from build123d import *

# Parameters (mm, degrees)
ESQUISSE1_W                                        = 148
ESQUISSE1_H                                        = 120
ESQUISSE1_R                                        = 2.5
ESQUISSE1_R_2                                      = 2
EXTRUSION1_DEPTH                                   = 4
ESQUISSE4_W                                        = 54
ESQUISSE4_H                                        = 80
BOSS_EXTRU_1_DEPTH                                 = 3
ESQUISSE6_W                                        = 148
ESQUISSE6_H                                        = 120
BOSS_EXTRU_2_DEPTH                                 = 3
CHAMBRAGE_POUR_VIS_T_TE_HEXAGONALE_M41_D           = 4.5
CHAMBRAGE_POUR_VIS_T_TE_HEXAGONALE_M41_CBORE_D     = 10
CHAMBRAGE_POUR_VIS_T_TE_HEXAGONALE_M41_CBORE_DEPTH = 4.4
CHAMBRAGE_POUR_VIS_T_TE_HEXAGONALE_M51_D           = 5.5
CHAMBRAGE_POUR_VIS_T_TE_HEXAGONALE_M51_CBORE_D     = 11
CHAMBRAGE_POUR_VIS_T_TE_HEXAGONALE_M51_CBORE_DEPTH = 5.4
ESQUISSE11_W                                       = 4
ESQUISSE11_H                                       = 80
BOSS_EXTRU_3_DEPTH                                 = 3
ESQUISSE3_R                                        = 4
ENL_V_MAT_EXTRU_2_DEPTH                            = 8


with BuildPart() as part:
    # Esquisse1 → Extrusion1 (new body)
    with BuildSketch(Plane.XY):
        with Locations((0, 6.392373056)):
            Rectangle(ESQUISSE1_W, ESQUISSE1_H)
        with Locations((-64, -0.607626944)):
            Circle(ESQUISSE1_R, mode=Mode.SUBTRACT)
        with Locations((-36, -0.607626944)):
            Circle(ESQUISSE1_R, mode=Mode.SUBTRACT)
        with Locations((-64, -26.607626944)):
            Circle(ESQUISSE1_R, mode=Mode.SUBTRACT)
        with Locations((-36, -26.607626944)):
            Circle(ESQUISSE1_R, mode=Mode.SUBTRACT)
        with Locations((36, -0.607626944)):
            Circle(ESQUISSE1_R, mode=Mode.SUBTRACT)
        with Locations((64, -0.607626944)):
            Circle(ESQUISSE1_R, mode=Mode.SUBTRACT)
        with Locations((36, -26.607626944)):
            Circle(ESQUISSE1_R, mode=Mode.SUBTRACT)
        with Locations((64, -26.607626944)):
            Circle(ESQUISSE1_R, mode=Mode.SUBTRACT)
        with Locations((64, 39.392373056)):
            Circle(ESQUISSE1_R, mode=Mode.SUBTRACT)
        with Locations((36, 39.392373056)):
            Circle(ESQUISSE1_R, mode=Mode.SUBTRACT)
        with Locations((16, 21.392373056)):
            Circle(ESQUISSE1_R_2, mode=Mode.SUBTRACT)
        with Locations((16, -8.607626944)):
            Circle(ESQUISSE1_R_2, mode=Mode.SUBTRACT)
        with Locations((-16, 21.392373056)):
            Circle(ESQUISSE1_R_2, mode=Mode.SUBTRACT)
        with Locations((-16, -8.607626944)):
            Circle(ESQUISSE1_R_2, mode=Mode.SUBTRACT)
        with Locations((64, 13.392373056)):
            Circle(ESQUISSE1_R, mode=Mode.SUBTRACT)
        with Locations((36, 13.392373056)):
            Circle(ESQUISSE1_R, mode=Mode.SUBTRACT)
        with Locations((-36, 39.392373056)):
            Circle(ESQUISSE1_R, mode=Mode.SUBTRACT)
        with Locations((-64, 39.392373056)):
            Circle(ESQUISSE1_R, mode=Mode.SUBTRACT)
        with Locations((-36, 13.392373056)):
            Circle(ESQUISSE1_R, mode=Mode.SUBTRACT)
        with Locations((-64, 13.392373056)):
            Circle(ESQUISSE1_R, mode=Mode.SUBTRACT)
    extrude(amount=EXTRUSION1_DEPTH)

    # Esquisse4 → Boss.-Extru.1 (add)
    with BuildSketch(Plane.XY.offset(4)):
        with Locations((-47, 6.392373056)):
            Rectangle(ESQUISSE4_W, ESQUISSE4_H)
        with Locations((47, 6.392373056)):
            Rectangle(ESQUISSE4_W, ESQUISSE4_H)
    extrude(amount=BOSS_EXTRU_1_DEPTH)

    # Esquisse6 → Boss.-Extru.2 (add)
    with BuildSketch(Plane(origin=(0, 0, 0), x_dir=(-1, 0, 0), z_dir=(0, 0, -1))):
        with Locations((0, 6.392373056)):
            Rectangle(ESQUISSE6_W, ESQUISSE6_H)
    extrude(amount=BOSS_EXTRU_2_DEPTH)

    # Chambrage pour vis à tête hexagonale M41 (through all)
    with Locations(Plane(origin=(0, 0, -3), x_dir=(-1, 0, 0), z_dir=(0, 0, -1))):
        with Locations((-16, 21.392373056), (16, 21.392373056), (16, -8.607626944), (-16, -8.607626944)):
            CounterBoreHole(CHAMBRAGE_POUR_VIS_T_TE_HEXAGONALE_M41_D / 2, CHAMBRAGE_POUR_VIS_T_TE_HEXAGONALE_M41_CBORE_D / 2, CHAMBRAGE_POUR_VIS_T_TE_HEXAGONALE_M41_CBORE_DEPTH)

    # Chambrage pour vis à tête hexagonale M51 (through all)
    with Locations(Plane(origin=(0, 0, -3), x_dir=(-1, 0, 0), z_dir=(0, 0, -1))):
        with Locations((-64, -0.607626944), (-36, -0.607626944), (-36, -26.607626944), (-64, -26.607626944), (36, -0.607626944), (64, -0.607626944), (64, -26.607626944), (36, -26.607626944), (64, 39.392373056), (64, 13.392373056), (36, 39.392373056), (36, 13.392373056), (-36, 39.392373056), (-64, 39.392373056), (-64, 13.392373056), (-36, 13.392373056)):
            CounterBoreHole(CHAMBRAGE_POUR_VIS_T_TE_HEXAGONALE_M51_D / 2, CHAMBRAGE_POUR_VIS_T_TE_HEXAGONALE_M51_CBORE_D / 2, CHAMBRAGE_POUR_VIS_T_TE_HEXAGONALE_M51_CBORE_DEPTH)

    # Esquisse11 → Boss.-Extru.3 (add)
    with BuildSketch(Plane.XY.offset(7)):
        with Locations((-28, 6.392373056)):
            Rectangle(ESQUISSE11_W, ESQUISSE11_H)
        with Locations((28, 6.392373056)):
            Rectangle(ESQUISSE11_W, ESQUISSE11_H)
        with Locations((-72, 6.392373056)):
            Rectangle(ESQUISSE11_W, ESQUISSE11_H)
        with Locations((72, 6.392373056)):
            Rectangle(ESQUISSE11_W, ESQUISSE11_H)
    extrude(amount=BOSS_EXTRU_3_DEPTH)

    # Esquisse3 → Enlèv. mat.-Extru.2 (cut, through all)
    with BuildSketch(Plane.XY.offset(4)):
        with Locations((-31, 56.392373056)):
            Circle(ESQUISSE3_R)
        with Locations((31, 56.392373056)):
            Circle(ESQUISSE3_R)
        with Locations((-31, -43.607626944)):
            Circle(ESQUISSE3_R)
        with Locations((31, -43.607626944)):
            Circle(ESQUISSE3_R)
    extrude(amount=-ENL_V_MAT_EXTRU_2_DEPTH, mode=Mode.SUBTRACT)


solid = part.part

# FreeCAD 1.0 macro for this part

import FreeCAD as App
import Part
import Sketcher
from FreeCAD import Vector
Q = App.Units.Quantity

doc = App.newDocument("Part")
body = doc.addObject("PartDesign::Body", "Body")

sketch1 = body.newObject("Sketcher::SketchObject", "Sketch")
sketch1.AttachmentSupport = (doc.getObject("XY_Plane"), [""])
sketch1.MapMode = "FlatFace"
sketch1.addGeometry(Part.LineSegment(Vector(-74, 66.4, 0), Vector(-74, -53.6, 0)), False)
sketch1.addGeometry(Part.LineSegment(Vector(-74, -53.6, 0), Vector(74, -53.6, 0)), False)
sketch1.addGeometry(Part.LineSegment(Vector(74, -53.6, 0), Vector(74, 66.4, 0)), False)
sketch1.addGeometry(Part.LineSegment(Vector(74, 66.4, 0), Vector(-74, 66.4, 0)), False)
sketch1.addGeometry(Part.Circle(Vector(-64, -26.6, 0), Vector(0, 0, 1), 2.5), False)
sketch1.addGeometry(Part.Circle(Vector(-36, -26.6, 0), Vector(0, 0, 1), 2.5), False)
sketch1.addGeometry(Part.Circle(Vector(-64, -0.6, 0), Vector(0, 0, 1), 2.5), False)
sketch1.addGeometry(Part.Circle(Vector(-36, -0.6, 0), Vector(0, 0, 1), 2.5), False)
sketch1.addGeometry(Part.Circle(Vector(-16, -8.6, 0), Vector(0, 0, 1), 2), False)
sketch1.addGeometry(Part.Circle(Vector(36, -26.6, 0), Vector(0, 0, 1), 2.5), False)
sketch1.addGeometry(Part.Circle(Vector(64, -26.6, 0), Vector(0, 0, 1), 2.5), False)
sketch1.addGeometry(Part.Circle(Vector(16, -8.6, 0), Vector(0, 0, 1), 2), False)
sketch1.addGeometry(Part.Circle(Vector(36, -0.6, 0), Vector(0, 0, 1), 2.5), False)
sketch1.addGeometry(Part.Circle(Vector(64, -0.6, 0), Vector(0, 0, 1), 2.5), False)
sketch1.addGeometry(Part.Circle(Vector(-64, 13.4, 0), Vector(0, 0, 1), 2.5), False)
sketch1.addGeometry(Part.Circle(Vector(-36, 13.4, 0), Vector(0, 0, 1), 2.5), False)
sketch1.addGeometry(Part.Circle(Vector(-16, 21.4, 0), Vector(0, 0, 1), 2), False)
sketch1.addGeometry(Part.Circle(Vector(-64, 39.4, 0), Vector(0, 0, 1), 2.5), False)
sketch1.addGeometry(Part.Circle(Vector(-36, 39.4, 0), Vector(0, 0, 1), 2.5), False)
sketch1.addGeometry(Part.Circle(Vector(16, 21.4, 0), Vector(0, 0, 1), 2), False)
sketch1.addGeometry(Part.Circle(Vector(36, 13.4, 0), Vector(0, 0, 1), 2.5), False)
sketch1.addGeometry(Part.Circle(Vector(64, 13.4, 0), Vector(0, 0, 1), 2.5), False)
sketch1.addGeometry(Part.Circle(Vector(36, 39.4, 0), Vector(0, 0, 1), 2.5), False)
sketch1.addGeometry(Part.Circle(Vector(64, 39.4, 0), Vector(0, 0, 1), 2.5), False)
sketch1.addConstraint(Sketcher.Constraint("Coincident", 0, 2, 1, 1))
sketch1.addConstraint(Sketcher.Constraint("Coincident", 1, 2, 2, 1))
sketch1.addConstraint(Sketcher.Constraint("Coincident", 2, 2, 3, 1))
sketch1.addConstraint(Sketcher.Constraint("Coincident", 3, 2, 0, 1))
sketch1.addConstraint(Sketcher.Constraint("Vertical", 0))
sketch1.addConstraint(Sketcher.Constraint("Horizontal", 1))
sketch1.addConstraint(Sketcher.Constraint("Vertical", 2))
sketch1.addConstraint(Sketcher.Constraint("Horizontal", 3))
sketch1.addConstraint(Sketcher.Constraint("Equal", 4, 5))
sketch1.addConstraint(Sketcher.Constraint("Equal", 5, 6))
sketch1.addConstraint(Sketcher.Constraint("Equal", 6, 7))
sketch1.addConstraint(Sketcher.Constraint("Equal", 7, 9))
sketch1.addConstraint(Sketcher.Constraint("Equal", 9, 10))
sketch1.addConstraint(Sketcher.Constraint("Equal", 8, 11))
sketch1.addConstraint(Sketcher.Constraint("Equal", 10, 12))
sketch1.addConstraint(Sketcher.Constraint("Equal", 12, 13))
sketch1.addConstraint(Sketcher.Constraint("Equal", 13, 14))
sketch1.addConstraint(Sketcher.Constraint("Equal", 14, 15))
sketch1.addConstraint(Sketcher.Constraint("Equal", 11, 16))
sketch1.addConstraint(Sketcher.Constraint("Equal", 15, 17))
sketch1.addConstraint(Sketcher.Constraint("Equal", 17, 18))
sketch1.addConstraint(Sketcher.Constraint("Equal", 16, 19))
sketch1.addConstraint(Sketcher.Constraint("Equal", 18, 20))
sketch1.addConstraint(Sketcher.Constraint("Equal", 20, 21))
sketch1.addConstraint(Sketcher.Constraint("Equal", 21, 22))
sketch1.addConstraint(Sketcher.Constraint("Equal", 22, 23))
sketch1.addConstraint(Sketcher.Constraint("Symmetric", 5, 3, 9, 3, -2))
sketch1.addConstraint(Sketcher.Constraint("Symmetric", 4, 3, 10, 3, -2))
sketch1.addConstraint(Sketcher.Constraint("Symmetric", 8, 3, 11, 3, -2))
sketch1.addConstraint(Sketcher.Constraint("Symmetric", 7, 3, 12, 3, -2))
sketch1.addConstraint(Sketcher.Constraint("Symmetric", 6, 3, 13, 3, -2))
sketch1.addConstraint(Sketcher.Constraint("Symmetric", 16, 3, 19, 3, -2))
sketch1.addConstraint(Sketcher.Constraint("Symmetric", 15, 3, 20, 3, -2))
sketch1.addConstraint(Sketcher.Constraint("Symmetric", 14, 3, 21, 3, -2))
sketch1.addConstraint(Sketcher.Constraint("Symmetric", 18, 3, 22, 3, -2))
sketch1.addConstraint(Sketcher.Constraint("Symmetric", 17, 3, 23, 3, -2))
sketch1.addConstraint(Sketcher.Constraint("Horizontal", 4, 3, 5, 3))
sketch1.addConstraint(Sketcher.Constraint("Horizontal", 6, 3, 7, 3))
sketch1.addConstraint(Sketcher.Constraint("Horizontal", 14, 3, 15, 3))
sketch1.addConstraint(Sketcher.Constraint("Horizontal", 17, 3, 18, 3))
sketch1.addConstraint(Sketcher.Constraint("Vertical", 4, 3, 6, 3))
sketch1.addConstraint(Sketcher.Constraint("Vertical", 5, 3, 7, 3))
sketch1.addConstraint(Sketcher.Constraint("Vertical", 6, 3, 14, 3))
sketch1.addConstraint(Sketcher.Constraint("Vertical", 7, 3, 15, 3))
sketch1.addConstraint(Sketcher.Constraint("Vertical", 8, 3, 16, 3))
sketch1.addConstraint(Sketcher.Constraint("Vertical", 14, 3, 17, 3))
sketch1.addConstraint(Sketcher.Constraint("Vertical", 15, 3, 18, 3))
sketch1.addConstraint(Sketcher.Constraint("Diameter", 4, Q("5 mm")))
sketch1.addConstraint(Sketcher.Constraint("Diameter", 8, Q("4 mm")))
sketch1.addConstraint(Sketcher.Constraint("DistanceX", 1, 1, 1, 2, Q("148 mm")))
sketch1.addConstraint(Sketcher.Constraint("DistanceY", 0, 2, 0, 1, Q("120 mm")))
sketch1.addConstraint(Sketcher.Constraint("DistanceX", 4, 3, -1, 1, Q("64 mm")))
sketch1.addConstraint(Sketcher.Constraint("DistanceX", 5, 3, -1, 1, Q("36 mm")))
sketch1.addConstraint(Sketcher.Constraint("DistanceX", 8, 3, -1, 1, Q("16 mm")))
sketch1.addConstraint(Sketcher.Constraint("DistanceX", 0, 2, -1, 1, Q("74 mm")))
sketch1.addConstraint(Sketcher.Constraint("DistanceY", 4, 3, 6, 3, Q("26 mm")))
sketch1.addConstraint(Sketcher.Constraint("DistanceY", 8, 3, 7, 3, Q("8 mm")))
sketch1.addConstraint(Sketcher.Constraint("DistanceY", 6, 3, 14, 3, Q("14 mm")))
sketch1.addConstraint(Sketcher.Constraint("DistanceY", 15, 3, 16, 3, Q("8 mm")))
sketch1.addConstraint(Sketcher.Constraint("DistanceY", 14, 3, 17, 3, Q("26 mm")))
sketch1.addConstraint(Sketcher.Constraint("DistanceY", 0, 2, 4, 3, Q("27 mm")))
sketch1.addConstraint(Sketcher.Constraint("DistanceY", 4, 3, -1, 1, Q("26.607627 mm")))
pad1 = body.newObject("PartDesign::Pad", "Pad")
pad1.Profile = sketch1
pad1.Length = 4

sketch2 = body.newObject("Sketcher::SketchObject", "Sketch001")
sketch2.AttachmentSupport = (doc.getObject("XY_Plane"), [""])
sketch2.MapMode = "FlatFace"
sketch2.AttachmentOffset = App.Placement(Vector(0, 0, 4), App.Rotation())
sketch2.addGeometry(Part.LineSegment(Vector(-74, 46, 0), Vector(-74, -34, 0)), False)
sketch2.addGeometry(Part.LineSegment(Vector(-74, -34, 0), Vector(-20, -34, 0)), False)
sketch2.addGeometry(Part.LineSegment(Vector(-20, -34, 0), Vector(-20, 46, 0)), False)
sketch2.addGeometry(Part.LineSegment(Vector(-20, 46, 0), Vector(-74, 46, 0)), False)
sketch2.addGeometry(Part.LineSegment(Vector(20, 46, 0), Vector(20, -34, 0)), False)
sketch2.addGeometry(Part.LineSegment(Vector(20, -34, 0), Vector(74, -34, 0)), False)
sketch2.addGeometry(Part.LineSegment(Vector(74, -34, 0), Vector(74, 46, 0)), False)
sketch2.addGeometry(Part.LineSegment(Vector(74, 46, 0), Vector(20, 46, 0)), False)
sketch2.addConstraint(Sketcher.Constraint("Coincident", 0, 2, 1, 1))
sketch2.addConstraint(Sketcher.Constraint("Coincident", 1, 2, 2, 1))
sketch2.addConstraint(Sketcher.Constraint("Coincident", 2, 2, 3, 1))
sketch2.addConstraint(Sketcher.Constraint("Coincident", 3, 2, 0, 1))
sketch2.addConstraint(Sketcher.Constraint("Coincident", 4, 2, 5, 1))
sketch2.addConstraint(Sketcher.Constraint("Coincident", 5, 2, 6, 1))
sketch2.addConstraint(Sketcher.Constraint("Coincident", 6, 2, 7, 1))
sketch2.addConstraint(Sketcher.Constraint("Coincident", 7, 2, 4, 1))
sketch2.addConstraint(Sketcher.Constraint("Vertical", 0))
sketch2.addConstraint(Sketcher.Constraint("Horizontal", 1))
sketch2.addConstraint(Sketcher.Constraint("Vertical", 2))
sketch2.addConstraint(Sketcher.Constraint("Horizontal", 3))
sketch2.addConstraint(Sketcher.Constraint("Vertical", 4))
sketch2.addConstraint(Sketcher.Constraint("Horizontal", 5))
sketch2.addConstraint(Sketcher.Constraint("Vertical", 6))
sketch2.addConstraint(Sketcher.Constraint("Horizontal", 7))
sketch2.addConstraint(Sketcher.Constraint("Symmetric", 1, 2, 4, 2, -2))
sketch2.addConstraint(Sketcher.Constraint("Symmetric", 3, 2, 6, 2, -2))
sketch2.addConstraint(Sketcher.Constraint("DistanceX", 1, 1, 1, 2, Q("54 mm")))
sketch2.addConstraint(Sketcher.Constraint("DistanceY", 0, 2, 0, 1, Q("80 mm")))
sketch2.addConstraint(Sketcher.Constraint("DistanceX", 0, 2, -1, 1, Q("74 mm")))
sketch2.addConstraint(Sketcher.Constraint("DistanceY", 0, 2, -1, 1, Q("33.607627 mm")))
pad2 = body.newObject("PartDesign::Pad", "Pad001")
pad2.Profile = sketch2
pad2.Length = 3

sketch3 = body.newObject("Sketcher::SketchObject", "Sketch002")
sketch3.AttachmentSupport = (doc.getObject("XY_Plane"), [""])
sketch3.MapMode = "FlatFace"
sketch3.addGeometry(Part.LineSegment(Vector(74, 66, 0), Vector(74, -54, 0)), False)
sketch3.addGeometry(Part.LineSegment(Vector(74, -54, 0), Vector(-74, -54, 0)), False)
sketch3.addGeometry(Part.LineSegment(Vector(-74, -54, 0), Vector(-74, 66, 0)), False)
sketch3.addGeometry(Part.LineSegment(Vector(-74, 66, 0), Vector(74, 66, 0)), False)
sketch3.addConstraint(Sketcher.Constraint("Coincident", 0, 2, 1, 1))
sketch3.addConstraint(Sketcher.Constraint("Coincident", 1, 2, 2, 1))
sketch3.addConstraint(Sketcher.Constraint("Coincident", 2, 2, 3, 1))
sketch3.addConstraint(Sketcher.Constraint("Coincident", 3, 2, 0, 1))
sketch3.addConstraint(Sketcher.Constraint("Vertical", 0))
sketch3.addConstraint(Sketcher.Constraint("Horizontal", 1))
sketch3.addConstraint(Sketcher.Constraint("Vertical", 2))
sketch3.addConstraint(Sketcher.Constraint("Horizontal", 3))
sketch3.addConstraint(Sketcher.Constraint("DistanceX", 1, 2, 1, 1, Q("148 mm")))
sketch3.addConstraint(Sketcher.Constraint("DistanceY", 0, 2, 0, 1, Q("120 mm")))
sketch3.addConstraint(Sketcher.Constraint("DistanceX", -1, 1, 0, 2, Q("74 mm")))
sketch3.addConstraint(Sketcher.Constraint("DistanceY", 0, 2, -1, 1, Q("53.607627 mm")))
pad3 = body.newObject("PartDesign::Pad", "Pad002")
pad3.Profile = sketch3
pad3.Length = 3
pad3.Reversed = True

sketch4 = body.newObject("Sketcher::SketchObject", "Sketch003")
sketch4.AttachmentSupport = (doc.getObject("XY_Plane"), [""])
sketch4.MapMode = "FlatFace"
sketch4.AttachmentOffset = App.Placement(Vector(0, 0, -3), App.Rotation())
sketch4.addGeometry(Part.Circle(Vector(16, 21.4, 0), Vector(0, 0, 1), 2.2), False)
sketch4.addGeometry(Part.Circle(Vector(-16, 21.4, 0), Vector(0, 0, 1), 2.2), False)
sketch4.addGeometry(Part.Circle(Vector(-16, -8.6, 0), Vector(0, 0, 1), 2.2), False)
sketch4.addGeometry(Part.Circle(Vector(16, -8.6, 0), Vector(0, 0, 1), 2.2), False)
sketch4.addConstraint(Sketcher.Constraint("Equal", 0, 1))
sketch4.addConstraint(Sketcher.Constraint("Equal", 1, 2))
sketch4.addConstraint(Sketcher.Constraint("Equal", 2, 3))
sketch4.addConstraint(Sketcher.Constraint("Symmetric", 0, 3, 1, 3, -2))
sketch4.addConstraint(Sketcher.Constraint("Symmetric", 2, 3, 3, 3, -2))
sketch4.addConstraint(Sketcher.Constraint("Vertical", 1, 3, 2, 3))
sketch4.addConstraint(Sketcher.Constraint("Diameter", 0, Q("4.5 mm")))
sketch4.addConstraint(Sketcher.Constraint("DistanceX", -1, 1, 0, 3, Q("16 mm")))
sketch4.addConstraint(Sketcher.Constraint("DistanceY", 2, 3, 1, 3, Q("30 mm")))
sketch4.addConstraint(Sketcher.Constraint("DistanceY", -1, 1, 0, 3, Q("21.392373 mm")))
doc.recompute()
hole = body.newObject("PartDesign::Hole", "Hole")
hole.Profile = sketch4
hole.ThreadType = "None"
hole.Diameter = 4.5
hole.DepthType = "ThroughAll"
hole.HoleCutType = "Counterbore"
hole.HoleCutDiameter = 10
hole.HoleCutDepth = 4.4
hole.Reversed = True

sketch5 = body.newObject("Sketcher::SketchObject", "Sketch004")
sketch5.AttachmentSupport = (doc.getObject("XY_Plane"), [""])
sketch5.MapMode = "FlatFace"
sketch5.AttachmentOffset = App.Placement(Vector(0, 0, -3), App.Rotation())
sketch5.addGeometry(Part.Circle(Vector(64, -0.6, 0), Vector(0, 0, 1), 2.8), False)
sketch5.addGeometry(Part.Circle(Vector(36, -0.6, 0), Vector(0, 0, 1), 2.8), False)
sketch5.addGeometry(Part.Circle(Vector(36, -26.6, 0), Vector(0, 0, 1), 2.8), False)
sketch5.addGeometry(Part.Circle(Vector(64, -26.6, 0), Vector(0, 0, 1), 2.8), False)
sketch5.addGeometry(Part.Circle(Vector(-36, -0.6, 0), Vector(0, 0, 1), 2.8), False)
sketch5.addGeometry(Part.Circle(Vector(-64, -0.6, 0), Vector(0, 0, 1), 2.8), False)
sketch5.addGeometry(Part.Circle(Vector(-64, -26.6, 0), Vector(0, 0, 1), 2.8), False)
sketch5.addGeometry(Part.Circle(Vector(-36, -26.6, 0), Vector(0, 0, 1), 2.8), False)
sketch5.addGeometry(Part.Circle(Vector(-64, 39.4, 0), Vector(0, 0, 1), 2.8), False)
sketch5.addGeometry(Part.Circle(Vector(-64, 13.4, 0), Vector(0, 0, 1), 2.8), False)
sketch5.addGeometry(Part.Circle(Vector(-36, 39.4, 0), Vector(0, 0, 1), 2.8), False)
sketch5.addGeometry(Part.Circle(Vector(-36, 13.4, 0), Vector(0, 0, 1), 2.8), False)
sketch5.addGeometry(Part.Circle(Vector(36, 39.4, 0), Vector(0, 0, 1), 2.8), False)
sketch5.addGeometry(Part.Circle(Vector(64, 39.4, 0), Vector(0, 0, 1), 2.8), False)
sketch5.addGeometry(Part.Circle(Vector(64, 13.4, 0), Vector(0, 0, 1), 2.8), False)
sketch5.addGeometry(Part.Circle(Vector(36, 13.4, 0), Vector(0, 0, 1), 2.8), False)
sketch5.addConstraint(Sketcher.Constraint("Equal", 0, 1))
sketch5.addConstraint(Sketcher.Constraint("Equal", 1, 2))
sketch5.addConstraint(Sketcher.Constraint("Equal", 2, 3))
sketch5.addConstraint(Sketcher.Constraint("Equal", 3, 4))
sketch5.addConstraint(Sketcher.Constraint("Equal", 4, 5))
sketch5.addConstraint(Sketcher.Constraint("Equal", 5, 6))
sketch5.addConstraint(Sketcher.Constraint("Equal", 6, 7))
sketch5.addConstraint(Sketcher.Constraint("Equal", 7, 8))
sketch5.addConstraint(Sketcher.Constraint("Equal", 8, 9))
sketch5.addConstraint(Sketcher.Constraint("Equal", 9, 10))
sketch5.addConstraint(Sketcher.Constraint("Equal", 10, 11))
sketch5.addConstraint(Sketcher.Constraint("Equal", 11, 12))
sketch5.addConstraint(Sketcher.Constraint("Equal", 12, 13))
sketch5.addConstraint(Sketcher.Constraint("Equal", 13, 14))
sketch5.addConstraint(Sketcher.Constraint("Equal", 14, 15))
sketch5.addConstraint(Sketcher.Constraint("Symmetric", 1, 3, 4, 3, -2))
sketch5.addConstraint(Sketcher.Constraint("Symmetric", 0, 3, 5, 3, -2))
sketch5.addConstraint(Sketcher.Constraint("Symmetric", 3, 3, 6, 3, -2))
sketch5.addConstraint(Sketcher.Constraint("Symmetric", 2, 3, 7, 3, -2))
sketch5.addConstraint(Sketcher.Constraint("Symmetric", 10, 3, 12, 3, -2))
sketch5.addConstraint(Sketcher.Constraint("Symmetric", 8, 3, 13, 3, -2))
sketch5.addConstraint(Sketcher.Constraint("Symmetric", 9, 3, 14, 3, -2))
sketch5.addConstraint(Sketcher.Constraint("Symmetric", 11, 3, 15, 3, -2))
sketch5.addConstraint(Sketcher.Constraint("Horizontal", 0, 3, 1, 3))
sketch5.addConstraint(Sketcher.Constraint("Horizontal", 2, 3, 3, 3))
sketch5.addConstraint(Sketcher.Constraint("Horizontal", 8, 3, 10, 3))
sketch5.addConstraint(Sketcher.Constraint("Horizontal", 9, 3, 11, 3))
sketch5.addConstraint(Sketcher.Constraint("Vertical", 1, 3, 2, 3))
sketch5.addConstraint(Sketcher.Constraint("Vertical", 0, 3, 3, 3))
sketch5.addConstraint(Sketcher.Constraint("Vertical", 6, 3, 8, 3))
sketch5.addConstraint(Sketcher.Constraint("Vertical", 8, 3, 9, 3))
sketch5.addConstraint(Sketcher.Constraint("Vertical", 7, 3, 10, 3))
sketch5.addConstraint(Sketcher.Constraint("Vertical", 10, 3, 11, 3))
sketch5.addConstraint(Sketcher.Constraint("Diameter", 0, Q("5.5 mm")))
sketch5.addConstraint(Sketcher.Constraint("DistanceX", -1, 1, 0, 3, Q("64 mm")))
sketch5.addConstraint(Sketcher.Constraint("DistanceX", -1, 1, 1, 3, Q("36 mm")))
sketch5.addConstraint(Sketcher.Constraint("DistanceY", 2, 3, 1, 3, Q("26 mm")))
sketch5.addConstraint(Sketcher.Constraint("DistanceY", 5, 3, 8, 3, Q("40 mm")))
sketch5.addConstraint(Sketcher.Constraint("DistanceY", 5, 3, 9, 3, Q("14 mm")))
sketch5.addConstraint(Sketcher.Constraint("DistanceY", 0, 3, -1, 1, Q("0.607627 mm")))
doc.recompute()
hole2 = body.newObject("PartDesign::Hole", "Hole001")
hole2.Profile = sketch5
hole2.ThreadType = "None"
hole2.Diameter = 5.5
hole2.DepthType = "ThroughAll"
hole2.HoleCutType = "Counterbore"
hole2.HoleCutDiameter = 11
hole2.HoleCutDepth = 5.4
hole2.Reversed = True

sketch6 = body.newObject("Sketcher::SketchObject", "Sketch005")
sketch6.AttachmentSupport = (doc.getObject("XY_Plane"), [""])
sketch6.MapMode = "FlatFace"
sketch6.AttachmentOffset = App.Placement(Vector(0, 0, 7), App.Rotation())
sketch6.addGeometry(Part.LineSegment(Vector(-30, 46.4, 0), Vector(-30, -33.6, 0)), False)
sketch6.addGeometry(Part.LineSegment(Vector(-30, -33.6, 0), Vector(-26, -33.6, 0)), False)
sketch6.addGeometry(Part.LineSegment(Vector(-26, -33.6, 0), Vector(-26, 46.4, 0)), False)
sketch6.addGeometry(Part.LineSegment(Vector(-26, 46.4, 0), Vector(-30, 46.4, 0)), False)
sketch6.addGeometry(Part.LineSegment(Vector(26, 46.4, 0), Vector(26, -33.6, 0)), False)
sketch6.addGeometry(Part.LineSegment(Vector(26, -33.6, 0), Vector(30, -33.6, 0)), False)
sketch6.addGeometry(Part.LineSegment(Vector(30, -33.6, 0), Vector(30, 46.4, 0)), False)
sketch6.addGeometry(Part.LineSegment(Vector(30, 46.4, 0), Vector(26, 46.4, 0)), False)
sketch6.addGeometry(Part.LineSegment(Vector(-74, 46.4, 0), Vector(-74, -33.6, 0)), False)
sketch6.addGeometry(Part.LineSegment(Vector(-74, -33.6, 0), Vector(-70, -33.6, 0)), False)
sketch6.addGeometry(Part.LineSegment(Vector(-70, -33.6, 0), Vector(-70, 46.4, 0)), False)
sketch6.addGeometry(Part.LineSegment(Vector(-70, 46.4, 0), Vector(-74, 46.4, 0)), False)
sketch6.addGeometry(Part.LineSegment(Vector(70, 46.4, 0), Vector(70, -33.6, 0)), False)
sketch6.addGeometry(Part.LineSegment(Vector(70, -33.6, 0), Vector(74, -33.6, 0)), False)
sketch6.addGeometry(Part.LineSegment(Vector(74, -33.6, 0), Vector(74, 46.4, 0)), False)
sketch6.addGeometry(Part.LineSegment(Vector(74, 46.4, 0), Vector(70, 46.4, 0)), False)
sketch6.addConstraint(Sketcher.Constraint("Coincident", 0, 2, 1, 1))
sketch6.addConstraint(Sketcher.Constraint("Coincident", 1, 2, 2, 1))
sketch6.addConstraint(Sketcher.Constraint("Coincident", 2, 2, 3, 1))
sketch6.addConstraint(Sketcher.Constraint("Coincident", 3, 2, 0, 1))
sketch6.addConstraint(Sketcher.Constraint("Coincident", 4, 2, 5, 1))
sketch6.addConstraint(Sketcher.Constraint("Coincident", 5, 2, 6, 1))
sketch6.addConstraint(Sketcher.Constraint("Coincident", 6, 2, 7, 1))
sketch6.addConstraint(Sketcher.Constraint("Coincident", 7, 2, 4, 1))
sketch6.addConstraint(Sketcher.Constraint("Coincident", 8, 2, 9, 1))
sketch6.addConstraint(Sketcher.Constraint("Coincident", 9, 2, 10, 1))
sketch6.addConstraint(Sketcher.Constraint("Coincident", 10, 2, 11, 1))
sketch6.addConstraint(Sketcher.Constraint("Coincident", 11, 2, 8, 1))
sketch6.addConstraint(Sketcher.Constraint("Coincident", 12, 2, 13, 1))
sketch6.addConstraint(Sketcher.Constraint("Coincident", 13, 2, 14, 1))
sketch6.addConstraint(Sketcher.Constraint("Coincident", 14, 2, 15, 1))
sketch6.addConstraint(Sketcher.Constraint("Coincident", 15, 2, 12, 1))
sketch6.addConstraint(Sketcher.Constraint("Vertical", 0))
sketch6.addConstraint(Sketcher.Constraint("Horizontal", 1))
sketch6.addConstraint(Sketcher.Constraint("Vertical", 2))
sketch6.addConstraint(Sketcher.Constraint("Horizontal", 3))
sketch6.addConstraint(Sketcher.Constraint("Vertical", 4))
sketch6.addConstraint(Sketcher.Constraint("Horizontal", 5))
sketch6.addConstraint(Sketcher.Constraint("Vertical", 6))
sketch6.addConstraint(Sketcher.Constraint("Horizontal", 7))
sketch6.addConstraint(Sketcher.Constraint("Vertical", 8))
sketch6.addConstraint(Sketcher.Constraint("Horizontal", 9))
sketch6.addConstraint(Sketcher.Constraint("Vertical", 10))
sketch6.addConstraint(Sketcher.Constraint("Horizontal", 11))
sketch6.addConstraint(Sketcher.Constraint("Vertical", 12))
sketch6.addConstraint(Sketcher.Constraint("Horizontal", 13))
sketch6.addConstraint(Sketcher.Constraint("Vertical", 14))
sketch6.addConstraint(Sketcher.Constraint("Horizontal", 15))
sketch6.addConstraint(Sketcher.Constraint("Symmetric", 1, 2, 4, 2, -2))
sketch6.addConstraint(Sketcher.Constraint("Symmetric", 3, 2, 6, 2, -2))
sketch6.addConstraint(Sketcher.Constraint("Symmetric", 9, 2, 12, 2, -2))
sketch6.addConstraint(Sketcher.Constraint("Symmetric", 11, 2, 14, 2, -2))
sketch6.addConstraint(Sketcher.Constraint("Horizontal", 5, 2, 8, 2))
sketch6.addConstraint(Sketcher.Constraint("Horizontal", 7, 2, 10, 2))
sketch6.addConstraint(Sketcher.Constraint("Equal", 7, 9))
sketch6.addConstraint(Sketcher.Constraint("DistanceX", 1, 1, 1, 2, Q("4 mm")))
sketch6.addConstraint(Sketcher.Constraint("DistanceY", 0, 2, 0, 1, Q("80 mm")))
sketch6.addConstraint(Sketcher.Constraint("DistanceX", 0, 2, -1, 1, Q("30 mm")))
sketch6.addConstraint(Sketcher.Constraint("DistanceX", 8, 2, -1, 1, Q("74 mm")))
sketch6.addConstraint(Sketcher.Constraint("DistanceY", 0, 2, -1, 1, Q("33.607627 mm")))
pad4 = body.newObject("PartDesign::Pad", "Pad003")
pad4.Profile = sketch6
pad4.Length = 3

sketch7 = body.newObject("Sketcher::SketchObject", "Sketch006")
sketch7.AttachmentSupport = (doc.getObject("XY_Plane"), [""])
sketch7.MapMode = "FlatFace"
sketch7.AttachmentOffset = App.Placement(Vector(0, 0, 4), App.Rotation())
sketch7.addGeometry(Part.Circle(Vector(-31, 56.4, 0), Vector(0, 0, 1), 4), False)
sketch7.addGeometry(Part.Circle(Vector(31, 56.4, 0), Vector(0, 0, 1), 4), False)
sketch7.addGeometry(Part.Circle(Vector(-31, -43.6, 0), Vector(0, 0, 1), 4), False)
sketch7.addGeometry(Part.Circle(Vector(31, -43.6, 0), Vector(0, 0, 1), 4), False)
sketch7.addConstraint(Sketcher.Constraint("Equal", 0, 1))
sketch7.addConstraint(Sketcher.Constraint("Equal", 1, 2))
sketch7.addConstraint(Sketcher.Constraint("Equal", 2, 3))
sketch7.addConstraint(Sketcher.Constraint("Symmetric", 0, 3, 1, 3, -2))
sketch7.addConstraint(Sketcher.Constraint("Symmetric", 2, 3, 3, 3, -2))
sketch7.addConstraint(Sketcher.Constraint("Vertical", 0, 3, 2, 3))
sketch7.addConstraint(Sketcher.Constraint("Diameter", 0, Q("8 mm")))
sketch7.addConstraint(Sketcher.Constraint("DistanceX", 0, 3, -1, 1, Q("31 mm")))
sketch7.addConstraint(Sketcher.Constraint("DistanceY", 2, 3, 0, 3, Q("100 mm")))
sketch7.addConstraint(Sketcher.Constraint("DistanceY", -1, 1, 0, 3, Q("56.392373 mm")))
pocket1 = body.newObject("PartDesign::Pocket", "Pocket")
pocket1.Profile = sketch7
pocket1.Type = "ThroughAll"

doc.recompute()
